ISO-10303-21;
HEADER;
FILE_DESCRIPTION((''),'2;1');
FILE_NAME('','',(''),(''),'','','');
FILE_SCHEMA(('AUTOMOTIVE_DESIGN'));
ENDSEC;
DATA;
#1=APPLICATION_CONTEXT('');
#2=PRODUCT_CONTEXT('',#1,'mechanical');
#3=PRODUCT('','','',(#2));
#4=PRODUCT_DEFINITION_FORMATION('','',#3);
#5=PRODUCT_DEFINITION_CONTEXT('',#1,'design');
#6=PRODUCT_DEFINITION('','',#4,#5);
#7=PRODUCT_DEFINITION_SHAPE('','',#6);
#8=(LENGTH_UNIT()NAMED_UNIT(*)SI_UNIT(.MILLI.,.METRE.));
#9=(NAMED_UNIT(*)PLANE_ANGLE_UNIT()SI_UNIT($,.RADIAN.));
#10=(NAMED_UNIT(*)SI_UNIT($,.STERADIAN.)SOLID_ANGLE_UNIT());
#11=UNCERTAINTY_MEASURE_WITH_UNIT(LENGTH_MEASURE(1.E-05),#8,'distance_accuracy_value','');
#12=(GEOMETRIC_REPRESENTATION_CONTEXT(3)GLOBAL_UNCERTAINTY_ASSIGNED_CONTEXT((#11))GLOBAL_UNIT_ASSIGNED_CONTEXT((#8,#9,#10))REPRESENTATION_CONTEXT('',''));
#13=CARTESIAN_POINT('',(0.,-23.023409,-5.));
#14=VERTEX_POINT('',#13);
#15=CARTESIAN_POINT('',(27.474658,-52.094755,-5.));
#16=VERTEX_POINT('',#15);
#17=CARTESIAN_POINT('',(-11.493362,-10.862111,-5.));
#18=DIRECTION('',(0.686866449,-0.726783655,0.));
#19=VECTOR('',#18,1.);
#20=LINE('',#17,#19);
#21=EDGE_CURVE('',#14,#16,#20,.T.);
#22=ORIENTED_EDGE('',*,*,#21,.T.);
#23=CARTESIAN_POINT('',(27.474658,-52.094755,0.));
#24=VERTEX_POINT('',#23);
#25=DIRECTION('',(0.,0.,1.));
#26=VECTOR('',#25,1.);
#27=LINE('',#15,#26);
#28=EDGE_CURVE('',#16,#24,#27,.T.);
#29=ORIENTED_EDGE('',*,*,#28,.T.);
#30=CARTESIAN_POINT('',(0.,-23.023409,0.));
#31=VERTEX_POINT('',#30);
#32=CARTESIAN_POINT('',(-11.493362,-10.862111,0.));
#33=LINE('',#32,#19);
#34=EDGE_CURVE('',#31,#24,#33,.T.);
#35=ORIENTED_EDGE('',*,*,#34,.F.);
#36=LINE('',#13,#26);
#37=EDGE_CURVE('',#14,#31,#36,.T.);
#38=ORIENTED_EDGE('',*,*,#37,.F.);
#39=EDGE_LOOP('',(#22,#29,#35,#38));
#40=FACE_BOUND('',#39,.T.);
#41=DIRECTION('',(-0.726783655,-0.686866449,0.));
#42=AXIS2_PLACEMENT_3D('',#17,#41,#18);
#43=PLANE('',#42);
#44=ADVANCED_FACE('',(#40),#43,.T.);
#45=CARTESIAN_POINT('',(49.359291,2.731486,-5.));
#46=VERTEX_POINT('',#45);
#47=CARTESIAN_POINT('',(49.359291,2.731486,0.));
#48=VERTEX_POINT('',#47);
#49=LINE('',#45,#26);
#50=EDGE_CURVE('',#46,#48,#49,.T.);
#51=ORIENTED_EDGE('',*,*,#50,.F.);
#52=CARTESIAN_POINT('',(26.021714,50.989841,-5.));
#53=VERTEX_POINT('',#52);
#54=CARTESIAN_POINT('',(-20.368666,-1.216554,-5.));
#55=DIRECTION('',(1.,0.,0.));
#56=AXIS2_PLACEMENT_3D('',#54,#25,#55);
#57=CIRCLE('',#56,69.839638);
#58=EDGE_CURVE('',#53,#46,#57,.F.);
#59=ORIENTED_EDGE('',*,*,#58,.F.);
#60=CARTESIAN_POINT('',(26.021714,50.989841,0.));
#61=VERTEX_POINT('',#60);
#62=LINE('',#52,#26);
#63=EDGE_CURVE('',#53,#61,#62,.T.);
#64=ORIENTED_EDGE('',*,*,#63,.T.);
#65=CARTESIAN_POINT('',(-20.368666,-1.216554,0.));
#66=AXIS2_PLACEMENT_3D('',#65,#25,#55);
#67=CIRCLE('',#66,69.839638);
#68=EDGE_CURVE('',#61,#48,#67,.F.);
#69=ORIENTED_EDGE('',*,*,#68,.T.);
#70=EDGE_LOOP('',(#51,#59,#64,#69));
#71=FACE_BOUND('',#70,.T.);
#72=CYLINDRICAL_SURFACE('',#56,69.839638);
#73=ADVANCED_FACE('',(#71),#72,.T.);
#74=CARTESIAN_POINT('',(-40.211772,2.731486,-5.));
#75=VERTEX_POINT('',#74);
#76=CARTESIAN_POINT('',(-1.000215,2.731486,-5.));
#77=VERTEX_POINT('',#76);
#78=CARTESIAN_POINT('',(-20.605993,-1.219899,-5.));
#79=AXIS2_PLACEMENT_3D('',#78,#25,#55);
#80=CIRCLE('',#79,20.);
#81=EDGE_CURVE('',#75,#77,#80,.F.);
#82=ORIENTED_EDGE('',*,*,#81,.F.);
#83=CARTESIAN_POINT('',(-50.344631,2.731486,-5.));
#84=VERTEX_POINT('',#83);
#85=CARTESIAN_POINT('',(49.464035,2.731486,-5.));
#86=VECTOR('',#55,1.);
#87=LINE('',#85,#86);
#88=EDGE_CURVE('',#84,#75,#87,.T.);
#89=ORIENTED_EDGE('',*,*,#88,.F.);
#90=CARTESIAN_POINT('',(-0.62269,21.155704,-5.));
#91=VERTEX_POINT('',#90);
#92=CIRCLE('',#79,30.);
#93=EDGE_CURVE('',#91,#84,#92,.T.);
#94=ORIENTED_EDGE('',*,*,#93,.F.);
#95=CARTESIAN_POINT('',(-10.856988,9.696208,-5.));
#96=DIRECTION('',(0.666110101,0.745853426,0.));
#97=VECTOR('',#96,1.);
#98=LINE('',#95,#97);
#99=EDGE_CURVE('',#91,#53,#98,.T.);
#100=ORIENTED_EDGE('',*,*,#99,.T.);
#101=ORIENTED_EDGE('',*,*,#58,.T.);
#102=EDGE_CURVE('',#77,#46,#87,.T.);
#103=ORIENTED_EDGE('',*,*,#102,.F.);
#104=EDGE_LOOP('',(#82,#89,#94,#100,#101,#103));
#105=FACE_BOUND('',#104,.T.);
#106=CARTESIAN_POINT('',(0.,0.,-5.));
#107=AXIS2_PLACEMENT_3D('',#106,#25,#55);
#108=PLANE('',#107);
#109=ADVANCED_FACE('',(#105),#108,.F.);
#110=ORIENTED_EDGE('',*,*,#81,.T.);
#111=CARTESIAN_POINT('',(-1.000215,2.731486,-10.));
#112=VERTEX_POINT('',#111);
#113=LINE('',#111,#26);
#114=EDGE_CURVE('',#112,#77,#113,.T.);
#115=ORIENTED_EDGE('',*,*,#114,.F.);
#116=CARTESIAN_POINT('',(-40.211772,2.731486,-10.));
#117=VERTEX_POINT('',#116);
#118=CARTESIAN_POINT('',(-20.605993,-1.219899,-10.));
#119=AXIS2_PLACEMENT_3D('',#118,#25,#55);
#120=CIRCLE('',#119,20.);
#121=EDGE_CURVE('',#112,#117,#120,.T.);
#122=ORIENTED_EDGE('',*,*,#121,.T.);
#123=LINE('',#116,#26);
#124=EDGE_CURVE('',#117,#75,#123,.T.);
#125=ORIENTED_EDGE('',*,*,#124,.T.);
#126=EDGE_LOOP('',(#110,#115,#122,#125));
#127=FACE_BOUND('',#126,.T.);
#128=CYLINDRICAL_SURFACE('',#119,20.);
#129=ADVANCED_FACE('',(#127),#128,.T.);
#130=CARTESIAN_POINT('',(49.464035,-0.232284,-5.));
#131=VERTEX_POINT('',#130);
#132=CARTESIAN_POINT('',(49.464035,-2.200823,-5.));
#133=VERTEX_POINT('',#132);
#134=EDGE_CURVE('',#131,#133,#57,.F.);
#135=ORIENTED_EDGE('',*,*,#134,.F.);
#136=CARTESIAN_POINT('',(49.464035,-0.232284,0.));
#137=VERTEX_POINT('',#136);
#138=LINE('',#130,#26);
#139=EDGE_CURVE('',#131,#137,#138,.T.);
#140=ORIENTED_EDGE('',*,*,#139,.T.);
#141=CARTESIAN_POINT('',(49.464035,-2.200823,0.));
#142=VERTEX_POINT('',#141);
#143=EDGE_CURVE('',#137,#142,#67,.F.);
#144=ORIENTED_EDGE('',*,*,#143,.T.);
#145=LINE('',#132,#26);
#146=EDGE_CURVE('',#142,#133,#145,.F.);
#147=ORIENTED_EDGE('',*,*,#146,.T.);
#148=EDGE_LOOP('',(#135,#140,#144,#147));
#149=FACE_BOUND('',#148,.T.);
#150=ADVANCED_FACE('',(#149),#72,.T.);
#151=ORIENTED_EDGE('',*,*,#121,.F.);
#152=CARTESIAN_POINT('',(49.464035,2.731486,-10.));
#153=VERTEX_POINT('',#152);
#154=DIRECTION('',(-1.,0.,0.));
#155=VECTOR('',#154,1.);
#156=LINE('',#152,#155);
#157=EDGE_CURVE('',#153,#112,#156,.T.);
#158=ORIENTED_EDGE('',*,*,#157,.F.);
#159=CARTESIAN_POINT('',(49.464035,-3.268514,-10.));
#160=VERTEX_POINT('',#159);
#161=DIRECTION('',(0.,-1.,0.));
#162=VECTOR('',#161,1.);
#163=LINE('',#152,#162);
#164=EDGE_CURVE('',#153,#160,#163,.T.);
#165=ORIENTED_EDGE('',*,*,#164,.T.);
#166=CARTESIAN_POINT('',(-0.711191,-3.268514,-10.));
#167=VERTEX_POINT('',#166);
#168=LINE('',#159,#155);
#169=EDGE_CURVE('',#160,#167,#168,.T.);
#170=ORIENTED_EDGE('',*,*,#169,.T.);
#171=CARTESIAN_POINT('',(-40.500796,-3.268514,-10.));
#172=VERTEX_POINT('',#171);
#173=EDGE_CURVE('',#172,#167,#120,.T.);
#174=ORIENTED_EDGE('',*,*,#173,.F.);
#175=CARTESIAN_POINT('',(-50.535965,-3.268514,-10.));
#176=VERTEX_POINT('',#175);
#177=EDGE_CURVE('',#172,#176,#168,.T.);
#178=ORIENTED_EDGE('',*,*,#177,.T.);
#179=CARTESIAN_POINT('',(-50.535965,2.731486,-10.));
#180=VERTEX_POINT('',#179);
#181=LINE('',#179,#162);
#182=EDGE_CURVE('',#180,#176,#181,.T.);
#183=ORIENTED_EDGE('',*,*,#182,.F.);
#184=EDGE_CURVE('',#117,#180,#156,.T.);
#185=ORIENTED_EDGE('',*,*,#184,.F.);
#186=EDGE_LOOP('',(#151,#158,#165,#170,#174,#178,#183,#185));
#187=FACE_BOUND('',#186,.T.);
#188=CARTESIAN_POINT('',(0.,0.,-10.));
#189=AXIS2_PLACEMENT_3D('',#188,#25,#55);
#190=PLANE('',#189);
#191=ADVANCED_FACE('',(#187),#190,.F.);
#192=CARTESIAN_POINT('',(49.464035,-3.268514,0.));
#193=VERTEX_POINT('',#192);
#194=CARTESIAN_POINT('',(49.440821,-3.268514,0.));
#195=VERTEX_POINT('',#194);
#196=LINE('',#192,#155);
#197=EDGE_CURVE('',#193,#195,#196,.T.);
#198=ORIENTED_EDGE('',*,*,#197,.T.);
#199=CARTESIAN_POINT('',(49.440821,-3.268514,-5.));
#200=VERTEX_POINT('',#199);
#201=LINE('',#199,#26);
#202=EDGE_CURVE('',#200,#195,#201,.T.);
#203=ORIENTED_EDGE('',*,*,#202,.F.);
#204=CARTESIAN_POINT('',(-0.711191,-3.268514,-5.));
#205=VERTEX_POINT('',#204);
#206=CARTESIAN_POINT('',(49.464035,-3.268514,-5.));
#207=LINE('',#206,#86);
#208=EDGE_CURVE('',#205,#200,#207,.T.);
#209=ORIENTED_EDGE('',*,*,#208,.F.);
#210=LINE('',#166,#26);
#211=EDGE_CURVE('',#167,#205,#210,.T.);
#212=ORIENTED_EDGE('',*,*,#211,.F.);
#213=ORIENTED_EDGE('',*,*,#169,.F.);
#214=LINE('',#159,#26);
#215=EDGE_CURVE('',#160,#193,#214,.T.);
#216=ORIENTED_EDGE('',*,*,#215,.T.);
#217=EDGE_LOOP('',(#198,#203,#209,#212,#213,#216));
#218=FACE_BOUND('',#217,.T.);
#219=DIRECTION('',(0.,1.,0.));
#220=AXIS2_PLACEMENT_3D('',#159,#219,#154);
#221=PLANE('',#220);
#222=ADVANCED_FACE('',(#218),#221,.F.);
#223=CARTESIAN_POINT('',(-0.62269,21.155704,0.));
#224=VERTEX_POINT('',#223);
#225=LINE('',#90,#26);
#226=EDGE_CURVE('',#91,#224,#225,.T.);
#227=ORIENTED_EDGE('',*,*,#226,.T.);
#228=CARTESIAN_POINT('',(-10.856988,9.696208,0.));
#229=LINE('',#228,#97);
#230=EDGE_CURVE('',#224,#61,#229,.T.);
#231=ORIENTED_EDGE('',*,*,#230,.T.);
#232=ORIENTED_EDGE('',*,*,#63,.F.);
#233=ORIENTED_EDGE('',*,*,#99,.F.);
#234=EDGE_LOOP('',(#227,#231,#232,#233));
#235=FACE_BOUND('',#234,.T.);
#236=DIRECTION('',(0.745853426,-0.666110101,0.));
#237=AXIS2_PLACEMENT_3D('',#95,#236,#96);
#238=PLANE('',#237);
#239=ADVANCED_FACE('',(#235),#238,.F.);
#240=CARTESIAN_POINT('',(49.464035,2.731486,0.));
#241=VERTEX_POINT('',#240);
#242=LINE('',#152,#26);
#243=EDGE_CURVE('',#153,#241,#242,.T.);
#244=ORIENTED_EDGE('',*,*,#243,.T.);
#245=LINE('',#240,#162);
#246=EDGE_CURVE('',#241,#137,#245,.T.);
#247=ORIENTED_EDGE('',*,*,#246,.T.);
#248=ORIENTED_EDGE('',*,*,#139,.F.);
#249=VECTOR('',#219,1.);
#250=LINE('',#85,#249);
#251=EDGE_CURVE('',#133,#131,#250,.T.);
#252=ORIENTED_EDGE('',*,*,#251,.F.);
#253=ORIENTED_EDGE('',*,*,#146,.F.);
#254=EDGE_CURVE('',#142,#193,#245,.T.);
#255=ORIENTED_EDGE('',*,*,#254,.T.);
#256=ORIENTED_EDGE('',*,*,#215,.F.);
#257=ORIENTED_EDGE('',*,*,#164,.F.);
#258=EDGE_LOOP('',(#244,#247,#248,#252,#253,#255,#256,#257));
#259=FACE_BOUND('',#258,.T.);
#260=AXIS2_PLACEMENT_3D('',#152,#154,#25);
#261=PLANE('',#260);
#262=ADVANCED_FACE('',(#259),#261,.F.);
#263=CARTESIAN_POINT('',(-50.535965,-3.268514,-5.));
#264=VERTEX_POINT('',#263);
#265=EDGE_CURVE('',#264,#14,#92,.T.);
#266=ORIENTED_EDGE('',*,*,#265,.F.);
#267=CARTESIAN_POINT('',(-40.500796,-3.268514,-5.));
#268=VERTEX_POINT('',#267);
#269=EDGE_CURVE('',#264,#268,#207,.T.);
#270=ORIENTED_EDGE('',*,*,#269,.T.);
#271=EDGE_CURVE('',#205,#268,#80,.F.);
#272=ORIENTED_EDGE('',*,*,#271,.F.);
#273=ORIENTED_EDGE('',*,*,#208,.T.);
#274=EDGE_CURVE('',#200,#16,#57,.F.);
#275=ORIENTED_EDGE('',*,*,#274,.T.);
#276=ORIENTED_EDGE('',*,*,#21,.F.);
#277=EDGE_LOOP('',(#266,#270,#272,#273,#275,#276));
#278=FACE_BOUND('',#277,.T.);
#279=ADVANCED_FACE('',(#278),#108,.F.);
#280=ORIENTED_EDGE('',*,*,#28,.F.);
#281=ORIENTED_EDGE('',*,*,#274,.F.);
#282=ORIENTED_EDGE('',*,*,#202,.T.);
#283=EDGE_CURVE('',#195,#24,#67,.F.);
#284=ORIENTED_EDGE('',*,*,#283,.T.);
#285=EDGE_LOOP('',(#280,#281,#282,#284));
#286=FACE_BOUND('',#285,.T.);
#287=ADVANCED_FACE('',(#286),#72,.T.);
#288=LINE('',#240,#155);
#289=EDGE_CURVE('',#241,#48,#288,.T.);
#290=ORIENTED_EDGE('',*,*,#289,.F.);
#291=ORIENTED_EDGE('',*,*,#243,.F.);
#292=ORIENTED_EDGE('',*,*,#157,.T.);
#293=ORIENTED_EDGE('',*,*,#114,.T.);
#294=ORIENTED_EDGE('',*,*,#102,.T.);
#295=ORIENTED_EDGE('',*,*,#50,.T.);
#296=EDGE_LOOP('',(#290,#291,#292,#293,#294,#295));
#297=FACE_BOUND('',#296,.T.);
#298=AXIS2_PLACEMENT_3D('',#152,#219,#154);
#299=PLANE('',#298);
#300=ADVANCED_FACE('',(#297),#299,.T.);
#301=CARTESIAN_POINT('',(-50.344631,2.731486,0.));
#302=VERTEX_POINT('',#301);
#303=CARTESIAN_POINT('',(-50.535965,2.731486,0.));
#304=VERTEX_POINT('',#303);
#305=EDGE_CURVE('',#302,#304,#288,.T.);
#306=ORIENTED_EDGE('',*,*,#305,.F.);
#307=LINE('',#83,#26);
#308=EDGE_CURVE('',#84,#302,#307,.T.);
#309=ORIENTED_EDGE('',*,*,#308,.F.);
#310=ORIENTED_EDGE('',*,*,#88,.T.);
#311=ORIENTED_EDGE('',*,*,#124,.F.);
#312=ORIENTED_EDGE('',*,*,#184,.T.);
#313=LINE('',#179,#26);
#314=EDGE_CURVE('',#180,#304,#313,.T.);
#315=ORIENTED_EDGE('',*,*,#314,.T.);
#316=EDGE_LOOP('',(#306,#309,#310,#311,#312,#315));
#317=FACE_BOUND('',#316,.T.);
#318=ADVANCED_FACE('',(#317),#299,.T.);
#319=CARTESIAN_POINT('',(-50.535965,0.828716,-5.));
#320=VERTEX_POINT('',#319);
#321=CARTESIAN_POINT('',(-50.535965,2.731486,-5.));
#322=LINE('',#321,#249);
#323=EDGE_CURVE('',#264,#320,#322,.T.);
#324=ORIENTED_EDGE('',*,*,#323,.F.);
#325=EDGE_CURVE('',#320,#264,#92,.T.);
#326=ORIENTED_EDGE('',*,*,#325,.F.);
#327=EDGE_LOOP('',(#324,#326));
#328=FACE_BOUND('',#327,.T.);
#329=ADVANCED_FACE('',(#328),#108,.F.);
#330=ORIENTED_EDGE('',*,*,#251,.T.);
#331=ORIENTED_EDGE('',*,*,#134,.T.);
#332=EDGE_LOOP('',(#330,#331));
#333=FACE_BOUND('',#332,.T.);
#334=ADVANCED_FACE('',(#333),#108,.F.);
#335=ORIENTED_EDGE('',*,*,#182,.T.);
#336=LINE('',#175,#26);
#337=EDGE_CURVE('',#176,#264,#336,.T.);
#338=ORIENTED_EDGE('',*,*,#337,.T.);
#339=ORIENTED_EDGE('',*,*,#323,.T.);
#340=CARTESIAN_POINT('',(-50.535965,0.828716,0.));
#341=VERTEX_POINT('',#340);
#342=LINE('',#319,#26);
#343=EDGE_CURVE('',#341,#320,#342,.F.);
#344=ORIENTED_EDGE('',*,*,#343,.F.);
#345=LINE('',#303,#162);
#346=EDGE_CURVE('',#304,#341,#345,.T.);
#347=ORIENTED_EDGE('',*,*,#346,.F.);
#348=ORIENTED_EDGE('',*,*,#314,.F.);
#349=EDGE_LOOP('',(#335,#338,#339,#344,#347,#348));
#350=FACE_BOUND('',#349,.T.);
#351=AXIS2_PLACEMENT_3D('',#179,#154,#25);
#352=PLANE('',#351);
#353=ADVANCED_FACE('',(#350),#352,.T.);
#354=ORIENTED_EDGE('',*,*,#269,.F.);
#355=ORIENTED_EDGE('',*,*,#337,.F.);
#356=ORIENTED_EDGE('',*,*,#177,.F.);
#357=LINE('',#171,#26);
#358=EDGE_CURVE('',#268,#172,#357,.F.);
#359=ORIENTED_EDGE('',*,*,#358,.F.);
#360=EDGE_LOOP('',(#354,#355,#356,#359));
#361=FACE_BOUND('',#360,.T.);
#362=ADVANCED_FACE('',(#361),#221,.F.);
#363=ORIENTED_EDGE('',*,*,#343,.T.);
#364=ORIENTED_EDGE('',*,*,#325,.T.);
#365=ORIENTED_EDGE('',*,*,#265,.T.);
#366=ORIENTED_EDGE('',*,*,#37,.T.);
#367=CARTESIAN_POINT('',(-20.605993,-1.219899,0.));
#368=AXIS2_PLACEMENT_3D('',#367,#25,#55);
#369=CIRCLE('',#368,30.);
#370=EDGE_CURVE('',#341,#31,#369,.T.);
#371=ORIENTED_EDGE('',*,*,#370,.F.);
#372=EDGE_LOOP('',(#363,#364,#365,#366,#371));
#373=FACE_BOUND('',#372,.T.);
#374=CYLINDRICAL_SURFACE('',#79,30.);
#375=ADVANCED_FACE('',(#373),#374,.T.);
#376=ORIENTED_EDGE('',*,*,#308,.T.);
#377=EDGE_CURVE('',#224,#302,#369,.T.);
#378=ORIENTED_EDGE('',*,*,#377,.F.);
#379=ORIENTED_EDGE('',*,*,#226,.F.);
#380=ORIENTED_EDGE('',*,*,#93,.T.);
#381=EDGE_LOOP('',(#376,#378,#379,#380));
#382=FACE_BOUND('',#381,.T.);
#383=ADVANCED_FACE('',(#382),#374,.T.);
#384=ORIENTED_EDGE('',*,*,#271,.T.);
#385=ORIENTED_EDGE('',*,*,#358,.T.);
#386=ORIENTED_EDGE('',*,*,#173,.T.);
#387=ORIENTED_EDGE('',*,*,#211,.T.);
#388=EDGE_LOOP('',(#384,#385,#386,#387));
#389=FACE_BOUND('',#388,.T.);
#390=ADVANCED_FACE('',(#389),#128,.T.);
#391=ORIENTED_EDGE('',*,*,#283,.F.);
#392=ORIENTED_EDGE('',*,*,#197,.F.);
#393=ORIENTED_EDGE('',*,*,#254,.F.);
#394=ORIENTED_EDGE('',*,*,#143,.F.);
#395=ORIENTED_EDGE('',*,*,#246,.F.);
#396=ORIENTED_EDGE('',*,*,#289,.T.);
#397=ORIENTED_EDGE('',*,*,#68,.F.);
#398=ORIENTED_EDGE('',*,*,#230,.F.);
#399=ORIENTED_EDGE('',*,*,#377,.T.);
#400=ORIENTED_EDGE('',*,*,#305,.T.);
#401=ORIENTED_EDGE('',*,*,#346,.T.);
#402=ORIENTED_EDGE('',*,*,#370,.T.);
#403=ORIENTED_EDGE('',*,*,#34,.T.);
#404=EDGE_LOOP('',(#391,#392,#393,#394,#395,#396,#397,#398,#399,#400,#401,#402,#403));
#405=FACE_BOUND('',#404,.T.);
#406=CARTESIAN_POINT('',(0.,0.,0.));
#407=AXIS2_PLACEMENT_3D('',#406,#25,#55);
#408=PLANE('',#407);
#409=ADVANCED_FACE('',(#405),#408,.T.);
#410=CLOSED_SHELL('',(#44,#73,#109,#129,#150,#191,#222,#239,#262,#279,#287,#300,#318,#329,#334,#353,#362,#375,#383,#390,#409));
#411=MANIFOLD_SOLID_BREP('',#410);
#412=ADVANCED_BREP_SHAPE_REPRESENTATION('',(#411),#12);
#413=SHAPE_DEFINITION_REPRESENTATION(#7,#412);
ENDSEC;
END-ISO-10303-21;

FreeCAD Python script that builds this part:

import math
import FreeCAD as App
import Part
import Sketcher
Q = App.Units.Quantity

doc = App.newDocument("Part")
body = doc.addObject("PartDesign::Body", "Body")

# Sketch on XY plane
sketch1 = body.newObject("Sketcher::SketchObject", "Sketch")
sketch1.AttachmentSupport = (doc.getObject("XY_Plane"), [""])
sketch1.MapMode = "FlatFace"
sketch1.addGeometry(Part.LineSegment(App.Vector(-0.711191, -3.268514, 0), App.Vector(49.464035, -3.268514, 0)), False)
sketch1.addGeometry(Part.LineSegment(App.Vector(49.464035, -3.268514, 0), App.Vector(49.464035, 2.731486, 0)), False)
sketch1.addGeometry(Part.LineSegment(App.Vector(49.464035, 2.731486, 0), App.Vector(-1.000215, 2.731486, 0)), False)
sketch1.addGeometry(Part.ArcOfCircle(Part.Circle(App.Vector(-20.605993, -1.219899, 0), App.Vector(0, 0, 1), 20), math.radians(11.394852), math.radians(168.605148)), False)
sketch1.addGeometry(Part.LineSegment(App.Vector(-40.211772, 2.731486, 0), App.Vector(-50.535965, 2.731486, 0)), False)
sketch1.addGeometry(Part.LineSegment(App.Vector(-50.535965, 2.731486, 0), App.Vector(-50.535965, -3.268514, 0)), False)
sketch1.addGeometry(Part.LineSegment(App.Vector(-50.535965, -3.268514, 0), App.Vector(-40.500796, -3.268514, 0)), False)
sketch1.addGeometry(Part.ArcOfCircle(Part.Circle(App.Vector(-20.605993, -1.219899, 0), App.Vector(0, 0, 1), 20), math.radians(-174.12084), math.radians(-5.87916)), False)
sketch1.addConstraint(Sketcher.Constraint("Coincident", 0, 2, 1, 1))
sketch1.addConstraint(Sketcher.Constraint("Coincident", 1, 2, 2, 1))
sketch1.addConstraint(Sketcher.Constraint("Coincident", 2, 2, 3, 1))
sketch1.addConstraint(Sketcher.Constraint("Coincident", 3, 2, 4, 1))
sketch1.addConstraint(Sketcher.Constraint("Coincident", 4, 2, 5, 1))
sketch1.addConstraint(Sketcher.Constraint("Coincident", 5, 2, 6, 1))
sketch1.addConstraint(Sketcher.Constraint("Coincident", 6, 2, 7, 1))
sketch1.addConstraint(Sketcher.Constraint("Coincident", 7, 2, 0, 1))
sketch1.addConstraint(Sketcher.Constraint("Horizontal", 0))
sketch1.addConstraint(Sketcher.Constraint("Vertical", 1))
sketch1.addConstraint(Sketcher.Constraint("Horizontal", 2))
sketch1.addConstraint(Sketcher.Constraint("Horizontal", 4))
sketch1.addConstraint(Sketcher.Constraint("Vertical", 5))
sketch1.addConstraint(Sketcher.Constraint("Horizontal", 6))
sketch1.addConstraint(Sketcher.Constraint("Coincident", 7, 3, 3, 3))
sketch1.addConstraint(Sketcher.Constraint("Equal", 3, 7))
sketch1.addConstraint(Sketcher.Constraint("Horizontal", 2, 2, 3, 2))
sketch1.addConstraint(Sketcher.Constraint("Horizontal", 0, 2, 5, 2))
sketch1.addConstraint(Sketcher.Constraint("Radius", 3, Q("20 mm")))
sketch1.addConstraint(Sketcher.Constraint("DistanceY", 1, 1, 1, 2, Q("6 mm")))
sketch1.addConstraint(Sketcher.Constraint("DistanceX", 4, 2, 1, 2, Q("100 mm")))
sketch1.addConstraint(Sketcher.Constraint("DistanceX", 2, 2, 2, 1, Q("50.46425 mm")))
sketch1.addConstraint(Sketcher.Constraint("DistanceX", 6, 1, 6, 2, Q("10.035168 mm")))
sketch1.addConstraint(Sketcher.Constraint("DistanceY", 3, 3, -1, 1, Q("1.219899 mm")))
sketch1.addConstraint(Sketcher.Constraint("DistanceX", 7, 2, -1, 1, Q("0.711191 mm")))
pad1 = body.newObject("PartDesign::Pad", "Pad")
pad1.Profile = sketch1
pad1.Length = 10
pad1.Reversed = True

# Sketch on XY plane
sketch2 = body.newObject("Sketcher::SketchObject", "Sketch001")
sketch2.AttachmentSupport = (doc.getObject("XY_Plane"), [""])
sketch2.MapMode = "FlatFace"
sketch2.addGeometry(Part.LineSegment(App.Vector(26.021714, 50.989841, 0), App.Vector(-0.62269, 21.155704, 0)), False)
sketch2.addGeometry(Part.ArcOfCircle(Part.Circle(App.Vector(-20.605993, -1.219899, 0), App.Vector(0, 0, 1), 30), math.radians(48.232454), math.radians(313.38257)), False)
sketch2.addGeometry(Part.LineSegment(App.Vector(0, -23.023409, 0), App.Vector(27.474658, -52.094755, 0)), False)
sketch2.addGeometry(Part.ArcOfCircle(Part.Circle(App.Vector(-20.368666, -1.216554, 0), App.Vector(0, 0, 1), 69.839638), math.radians(-46.76082), math.radians(48.375845)), False)
sketch2.addConstraint(Sketcher.Constraint("Coincident", 0, 2, 1, 1))
sketch2.addConstraint(Sketcher.Constraint("Coincident", 1, 2, 2, 1))
sketch2.addConstraint(Sketcher.Constraint("Coincident", 2, 2, 3, 1))
sketch2.addConstraint(Sketcher.Constraint("Coincident", 3, 2, 0, 1))
sketch2.addConstraint(Sketcher.Constraint("PointOnObject", 1, 2, -2))
sketch2.addConstraint(Sketcher.Constraint("Equal", 0, 2))
sketch2.addConstraint(Sketcher.Constraint("Radius", 1, Q("30 mm")))
sketch2.addConstraint(Sketcher.Constraint("Distance", 0, Q("40 mm")))
sketch2.addConstraint(Sketcher.Constraint("Radius", 3, Q("69.839638 mm")))
sketch2.addConstraint(Sketcher.Constraint("DistanceY", 1, 3, -1, 1, Q("1.219899 mm")))
sketch2.addConstraint(Sketcher.Constraint("DistanceY", 2, 2, 3, 3, Q("50.878201 mm")))
sketch2.addConstraint(Sketcher.Constraint("DistanceX", 0, 2, -1, 1, Q("0.62269 mm")))
sketch2.addConstraint(Sketcher.Constraint("DistanceY", 1, 2, -1, 1, Q("23.023409 mm")))
sketch2.addConstraint(Sketcher.Constraint("DistanceY", -1, 1, 3, 2, Q("50.989841 mm")))
pad2 = body.newObject("PartDesign::Pad", "Pad001")
pad2.Profile = sketch2
pad2.Length = 5
pad2.Reversed = True

doc.recompute()
